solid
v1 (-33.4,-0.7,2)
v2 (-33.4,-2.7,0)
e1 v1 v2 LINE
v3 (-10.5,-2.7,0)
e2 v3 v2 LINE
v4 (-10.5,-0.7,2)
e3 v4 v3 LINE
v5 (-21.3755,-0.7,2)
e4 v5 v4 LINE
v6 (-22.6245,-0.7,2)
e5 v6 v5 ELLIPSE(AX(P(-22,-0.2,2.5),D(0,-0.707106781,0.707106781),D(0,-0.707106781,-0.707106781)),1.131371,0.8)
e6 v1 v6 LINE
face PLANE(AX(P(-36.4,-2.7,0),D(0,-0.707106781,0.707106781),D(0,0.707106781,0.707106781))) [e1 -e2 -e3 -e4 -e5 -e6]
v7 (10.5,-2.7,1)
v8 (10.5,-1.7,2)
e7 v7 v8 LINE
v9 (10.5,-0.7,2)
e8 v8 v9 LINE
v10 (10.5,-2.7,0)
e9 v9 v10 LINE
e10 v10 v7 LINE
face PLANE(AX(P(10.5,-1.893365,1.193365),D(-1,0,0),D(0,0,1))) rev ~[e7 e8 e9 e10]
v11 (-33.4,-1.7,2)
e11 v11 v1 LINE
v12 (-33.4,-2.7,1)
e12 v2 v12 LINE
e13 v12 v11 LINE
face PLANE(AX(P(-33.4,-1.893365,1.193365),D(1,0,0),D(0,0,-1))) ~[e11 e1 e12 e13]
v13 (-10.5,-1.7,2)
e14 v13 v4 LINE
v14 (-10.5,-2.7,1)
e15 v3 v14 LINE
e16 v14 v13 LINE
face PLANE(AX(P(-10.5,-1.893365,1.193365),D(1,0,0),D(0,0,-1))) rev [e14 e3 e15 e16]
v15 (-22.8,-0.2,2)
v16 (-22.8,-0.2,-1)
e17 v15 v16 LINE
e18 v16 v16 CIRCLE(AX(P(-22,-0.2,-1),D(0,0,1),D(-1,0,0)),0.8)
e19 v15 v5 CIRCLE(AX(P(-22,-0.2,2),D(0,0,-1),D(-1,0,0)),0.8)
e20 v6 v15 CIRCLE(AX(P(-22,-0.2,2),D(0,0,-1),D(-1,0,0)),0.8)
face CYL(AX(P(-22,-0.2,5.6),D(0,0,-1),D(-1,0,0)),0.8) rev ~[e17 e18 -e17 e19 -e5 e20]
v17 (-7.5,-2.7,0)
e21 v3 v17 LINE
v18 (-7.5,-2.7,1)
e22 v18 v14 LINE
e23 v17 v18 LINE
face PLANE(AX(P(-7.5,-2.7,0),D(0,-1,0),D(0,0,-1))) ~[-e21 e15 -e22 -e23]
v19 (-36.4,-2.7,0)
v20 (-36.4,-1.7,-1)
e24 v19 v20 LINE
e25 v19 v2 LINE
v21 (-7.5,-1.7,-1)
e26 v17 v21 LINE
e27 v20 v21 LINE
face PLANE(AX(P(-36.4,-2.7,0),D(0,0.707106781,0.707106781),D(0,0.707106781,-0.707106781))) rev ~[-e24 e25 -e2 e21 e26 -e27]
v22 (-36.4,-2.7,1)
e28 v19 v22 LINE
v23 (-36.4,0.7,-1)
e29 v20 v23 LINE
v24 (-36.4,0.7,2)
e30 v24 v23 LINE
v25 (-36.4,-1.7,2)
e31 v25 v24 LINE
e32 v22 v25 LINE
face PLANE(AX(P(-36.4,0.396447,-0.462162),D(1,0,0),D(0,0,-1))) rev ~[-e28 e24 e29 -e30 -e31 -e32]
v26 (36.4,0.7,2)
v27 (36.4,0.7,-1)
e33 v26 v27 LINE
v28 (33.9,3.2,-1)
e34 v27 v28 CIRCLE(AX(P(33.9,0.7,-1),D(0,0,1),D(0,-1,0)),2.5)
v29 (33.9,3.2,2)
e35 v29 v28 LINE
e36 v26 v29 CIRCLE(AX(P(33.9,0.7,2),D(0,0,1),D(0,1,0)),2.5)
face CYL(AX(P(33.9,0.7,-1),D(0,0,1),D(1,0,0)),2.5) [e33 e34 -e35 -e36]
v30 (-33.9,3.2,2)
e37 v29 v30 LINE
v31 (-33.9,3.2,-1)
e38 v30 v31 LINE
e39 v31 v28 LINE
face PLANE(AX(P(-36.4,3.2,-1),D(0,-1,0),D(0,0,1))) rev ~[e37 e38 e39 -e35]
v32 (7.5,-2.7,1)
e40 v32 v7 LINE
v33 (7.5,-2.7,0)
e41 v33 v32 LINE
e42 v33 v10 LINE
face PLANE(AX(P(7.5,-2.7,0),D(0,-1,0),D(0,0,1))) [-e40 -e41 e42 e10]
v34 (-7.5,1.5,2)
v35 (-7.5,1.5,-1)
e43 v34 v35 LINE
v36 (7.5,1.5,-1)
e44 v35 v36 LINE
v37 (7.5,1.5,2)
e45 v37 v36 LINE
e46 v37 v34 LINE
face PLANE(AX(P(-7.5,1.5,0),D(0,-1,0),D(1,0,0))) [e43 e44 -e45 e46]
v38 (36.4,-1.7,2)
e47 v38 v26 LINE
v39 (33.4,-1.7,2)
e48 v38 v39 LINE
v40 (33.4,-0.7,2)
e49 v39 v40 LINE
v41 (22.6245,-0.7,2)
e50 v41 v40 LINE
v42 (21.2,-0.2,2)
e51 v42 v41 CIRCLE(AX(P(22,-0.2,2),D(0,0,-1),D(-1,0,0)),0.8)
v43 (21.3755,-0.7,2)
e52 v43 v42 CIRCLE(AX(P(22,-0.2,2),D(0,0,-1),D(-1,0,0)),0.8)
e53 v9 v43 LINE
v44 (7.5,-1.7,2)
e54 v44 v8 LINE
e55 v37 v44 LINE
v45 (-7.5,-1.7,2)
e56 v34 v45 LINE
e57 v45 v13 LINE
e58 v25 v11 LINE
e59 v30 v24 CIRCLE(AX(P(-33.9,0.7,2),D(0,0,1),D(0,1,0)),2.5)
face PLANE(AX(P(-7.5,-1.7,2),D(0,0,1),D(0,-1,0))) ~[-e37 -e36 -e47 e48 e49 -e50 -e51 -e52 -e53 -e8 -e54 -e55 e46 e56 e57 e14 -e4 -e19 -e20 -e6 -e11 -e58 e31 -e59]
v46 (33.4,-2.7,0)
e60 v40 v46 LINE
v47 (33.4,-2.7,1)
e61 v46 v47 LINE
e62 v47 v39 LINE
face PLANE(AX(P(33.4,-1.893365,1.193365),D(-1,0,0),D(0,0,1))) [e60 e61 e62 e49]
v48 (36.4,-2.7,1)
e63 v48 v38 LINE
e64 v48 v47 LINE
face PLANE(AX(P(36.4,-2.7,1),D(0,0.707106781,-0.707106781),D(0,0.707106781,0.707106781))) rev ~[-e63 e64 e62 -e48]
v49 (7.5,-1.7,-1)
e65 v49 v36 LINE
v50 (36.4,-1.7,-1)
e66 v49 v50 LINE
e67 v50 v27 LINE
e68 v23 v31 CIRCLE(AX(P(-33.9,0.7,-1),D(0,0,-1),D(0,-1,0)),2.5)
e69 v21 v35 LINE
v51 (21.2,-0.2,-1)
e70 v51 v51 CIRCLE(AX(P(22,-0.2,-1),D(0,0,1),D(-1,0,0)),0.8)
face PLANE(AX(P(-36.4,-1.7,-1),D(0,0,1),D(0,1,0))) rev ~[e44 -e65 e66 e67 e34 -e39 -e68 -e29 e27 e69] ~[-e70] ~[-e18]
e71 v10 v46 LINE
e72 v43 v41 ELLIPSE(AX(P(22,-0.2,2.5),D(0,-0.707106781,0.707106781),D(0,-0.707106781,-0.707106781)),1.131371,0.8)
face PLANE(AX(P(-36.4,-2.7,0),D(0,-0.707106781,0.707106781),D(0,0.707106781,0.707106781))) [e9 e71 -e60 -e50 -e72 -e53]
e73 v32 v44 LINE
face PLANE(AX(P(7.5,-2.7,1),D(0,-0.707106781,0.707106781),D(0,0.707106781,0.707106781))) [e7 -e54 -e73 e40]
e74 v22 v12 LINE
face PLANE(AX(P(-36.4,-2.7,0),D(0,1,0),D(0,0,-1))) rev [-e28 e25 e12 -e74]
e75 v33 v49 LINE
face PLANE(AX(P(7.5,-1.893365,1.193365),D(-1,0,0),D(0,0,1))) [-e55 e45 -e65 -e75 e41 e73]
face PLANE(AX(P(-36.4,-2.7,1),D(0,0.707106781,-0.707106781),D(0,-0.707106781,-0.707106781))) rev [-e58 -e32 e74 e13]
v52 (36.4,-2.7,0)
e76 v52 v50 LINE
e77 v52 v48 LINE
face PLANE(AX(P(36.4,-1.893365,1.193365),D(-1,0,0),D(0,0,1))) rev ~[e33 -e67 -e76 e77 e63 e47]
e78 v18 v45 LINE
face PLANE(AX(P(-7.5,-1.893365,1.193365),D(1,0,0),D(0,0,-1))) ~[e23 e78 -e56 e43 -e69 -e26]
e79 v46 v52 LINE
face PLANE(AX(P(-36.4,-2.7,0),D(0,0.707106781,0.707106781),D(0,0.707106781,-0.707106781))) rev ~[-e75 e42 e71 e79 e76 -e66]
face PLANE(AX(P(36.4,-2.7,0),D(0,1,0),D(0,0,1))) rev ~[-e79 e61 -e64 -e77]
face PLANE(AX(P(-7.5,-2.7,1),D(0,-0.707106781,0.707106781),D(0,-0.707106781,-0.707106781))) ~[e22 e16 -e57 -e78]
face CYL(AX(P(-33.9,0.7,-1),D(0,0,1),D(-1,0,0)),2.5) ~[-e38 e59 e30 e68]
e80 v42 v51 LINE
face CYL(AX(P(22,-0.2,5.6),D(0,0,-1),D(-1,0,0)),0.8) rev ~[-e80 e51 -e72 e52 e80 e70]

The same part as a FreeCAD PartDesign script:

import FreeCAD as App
import Part
import Sketcher
from FreeCAD import Vector
Q = App.Units.Quantity


def edges_at(feature, points):
    """Names of the edges that pass closest to the given points."""
    edges = feature.Shape.Edges
    near = lambda p: min(range(len(edges)), key=lambda i: edges[i].distToShape(Part.Vertex(*p))[0])
    return sorted({f"Edge{near(p) + 1}" for p in points})


def add_polygon(sketch, points):
    """Adds a closed chain of lines whose ends are joined by coincident constraints."""
    first, n = sketch.GeometryCount, len(points)
    for a, b in zip(points, points[1:] + points[:1]):
        sketch.addGeometry(Part.LineSegment(App.Vector(*a, 0), App.Vector(*b, 0)), False)
    for i in range(n):
        sketch.addConstraint(Sketcher.Constraint("Coincident", first + i, 2, first + (i + 1) % n, 1))

doc = App.newDocument("Part")
body = doc.addObject("PartDesign::Body", "Body")

# Sketch on YZ plane
sketch1 = doc.addObject("Sketcher::SketchObject", "Sketch")
body.addObject(sketch1)
sketch1.AttachmentSupport = (doc.YZ_Plane, [""])
sketch1.MapMode = "FlatFace"
add_polygon(sketch1, [(-1.2, 2), (-3.2, 0), (3.2, 0), (3.2, 2)])  # lines 0-3
sketch1.addConstraint(Sketcher.Constraint("Horizontal", 1))
sketch1.addConstraint(Sketcher.Constraint("Vertical", 2))
sketch1.addConstraint(Sketcher.Constraint("Horizontal", 3))
sketch1.addConstraint(Sketcher.Constraint("Symmetric", 0, 2, 1, 2, -1, 1))
sketch1.addConstraint(Sketcher.Constraint("DistanceY", 2, 1, 2, 2, Q("2 mm")))
sketch1.addConstraint(Sketcher.Constraint("Angle", 0, Q("-135 deg")))
sketch1.addConstraint(Sketcher.Constraint("DistanceX", 1, 1, 1, 2, Q("6.4 mm")))
pad1 = doc.addObject("PartDesign::Pad", "Pad")
body.addObject(pad1)
pad1.Profile = sketch1
pad1.Length = 72.8
pad1.Midplane = True
doc.recompute()

fillet = doc.addObject("PartDesign::Fillet", "Fillet")
body.addObject(fillet)
fillet.Base = (pad1, edges_at(pad1, [(-36.4, 3.2, 1), (36.4, 3.2, 1)]))
fillet.Radius = 2.5

# Sketch on YZ plane
sketch2 = doc.addObject("Sketcher::SketchObject", "Sketch001")
body.addObject(sketch2)
sketch2.AttachmentSupport = (doc.YZ_Plane, [""])
sketch2.MapMode = "FlatFace"
sketch2.AttachmentOffset = App.Placement(Vector(0, 0, -36.4), App.Rotation())
add_polygon(sketch2, [(-0.7, 2), (-2.7, 0), (-3.2, 0), (-1.2, 2)])  # lines 0-3
sketch2.addConstraint(Sketcher.Constraint("Horizontal", 1))
sketch2.addConstraint(Sketcher.Constraint("Horizontal", 3))
sketch2.addConstraint(Sketcher.Constraint("PointOnObject", 0, 2, -1))
sketch2.addConstraint(Sketcher.Constraint("Parallel", 0, 2))
sketch2.addConstraint(Sketcher.Constraint("Angle", 0, Q("-135 deg")))
sketch2.addConstraint(Sketcher.Constraint("DistanceX", 1, 2, 1, 1, Q("0.5 mm")))
sketch2.addConstraint(Sketcher.Constraint("DistanceY", -1, 1, 2, 2, Q("2 mm")))
sketch2.addConstraint(Sketcher.Constraint("DistanceX", 0, 2, -1, 1, Q("2.7 mm")))
pocket1 = doc.addObject("PartDesign::Pocket", "Pocket")
body.addObject(pocket1)
pocket1.Profile = sketch2
pocket1.Length = 72.8
pocket1.Reversed = True

# Sketch on YZ plane
sketch3 = doc.addObject("Sketcher::SketchObject", "Sketch002")
body.addObject(sketch3)
sketch3.AttachmentSupport = (doc.YZ_Plane, [""])
sketch3.MapMode = "FlatFace"
sketch3.AttachmentOffset = App.Placement(Vector(0, 0, -36.4), App.Rotation())
add_polygon(sketch3, [(-1.7, -1), (-2.7, 0), (3.2, 0), (3.2, -1)])  # lines 0-3
sketch3.addConstraint(Sketcher.Constraint("Horizontal", 1))
sketch3.addConstraint(Sketcher.Constraint("Vertical", 2))
sketch3.addConstraint(Sketcher.Constraint("Horizontal", 3))
sketch3.addConstraint(Sketcher.Constraint("PointOnObject", 0, 2, -1))
sketch3.addConstraint(Sketcher.Constraint("DistanceY", 2, 2, 2, 1, Q("1 mm")))
sketch3.addConstraint(Sketcher.Constraint("Angle", 0, Q("135 deg")))
sketch3.addConstraint(Sketcher.Constraint("DistanceX", 1, 1, 1, 2, Q("5.9 mm")))
sketch3.addConstraint(Sketcher.Constraint("DistanceX", 0, 2, -1, 1, Q("2.7 mm")))
pad2 = doc.addObject("PartDesign::Pad", "Pad001")
body.addObject(pad2)
pad2.Profile = sketch3
pad2.Length = 72.8

# Sketch on XY plane
sketch4 = doc.addObject("Sketcher::SketchObject", "Sketch003")
body.addObject(sketch4)
sketch4.AttachmentSupport = (doc.XY_Plane, [""])
sketch4.MapMode = "FlatFace"
sketch4.AttachmentOffset = App.Placement(Vector(0, 0, 2), App.Rotation())
sketch4.addGeometry(Part.Circle(Vector(-22, -0.2, 0), Vector(0, 0, 1), 0.8), False)
sketch4.addGeometry(Part.Circle(Vector(22, -0.2, 0), Vector(0, 0, 1), 0.8), False)
sketch4.addGeometry(Part.Circle(Vector(0, -0.2, 0), Vector(0, 0, 1), 0.8), False)
sketch4.addConstraint(Sketcher.Constraint("Equal", 0, 1))
sketch4.addConstraint(Sketcher.Constraint("Equal", 1, 2))
sketch4.addConstraint(Sketcher.Constraint("Symmetric", 0, 3, 1, 3, -2))
sketch4.addConstraint(Sketcher.Constraint("PointOnObject", 2, 3, -2))
sketch4.addConstraint(Sketcher.Constraint("Horizontal", 1, 3, 2, 3))
sketch4.addConstraint(Sketcher.Constraint("Diameter", 0, Q("1.6 mm")))
sketch4.addConstraint(Sketcher.Constraint("DistanceX", 0, 3, -1, 1, Q("22 mm")))
sketch4.addConstraint(Sketcher.Constraint("DistanceY", 0, 3, -1, 1, Q("0.2 mm")))
doc.recompute()
hole = doc.addObject("PartDesign::Hole", "Hole")
body.addObject(hole)
hole.Profile = sketch4
hole.ThreadType = "None"
hole.Diameter = 1.6
hole.DepthType = "Dimension"
hole.Depth = 3.6
hole.DrillPoint = "Angled"
hole.DrillPointAngle = 118
doc.recompute()

fillet2 = doc.addObject("PartDesign::Fillet", "Fillet001")
body.addObject(fillet2)
fillet2.Base = (hole, edges_at(hole, [(36.4, 3.2, -0.5), (-36.4, 3.2, -0.5)]))
fillet2.Radius = 2.5

# Sketch on XY plane
sketch5 = doc.addObject("Sketcher::SketchObject", "Sketch004")
body.addObject(sketch5)
sketch5.AttachmentSupport = (doc.XY_Plane, [""])
sketch5.MapMode = "FlatFace"
add_polygon(sketch5, [(-7.5, 1.5), (-7.5, -3.2), (7.5, -3.2), (7.5, 1.5)])  # lines 0-3
sketch5.addConstraint(Sketcher.Constraint("Vertical", 0))
sketch5.addConstraint(Sketcher.Constraint("Horizontal", 1))
sketch5.addConstraint(Sketcher.Constraint("Vertical", 2))
sketch5.addConstraint(Sketcher.Constraint("Horizontal", 3))
sketch5.addConstraint(Sketcher.Constraint("DistanceX", 1, 1, 1, 2, Q("15 mm")))
sketch5.addConstraint(Sketcher.Constraint("DistanceY", 0, 2, 0, 1, Q("4.7 mm")))
sketch5.addConstraint(Sketcher.Constraint("DistanceX", 0, 2, -1, 1, Q("7.5 mm")))
sketch5.addConstraint(Sketcher.Constraint("DistanceY", 0, 2, -1, 1, Q("3.2 mm")))
pocket2 = doc.addObject("PartDesign::Pocket", "Pocket001")
body.addObject(pocket2)
pocket2.Profile = sketch5
pocket2.Length = 10
pocket2.Midplane = True

# Sketch on YZ plane
sketch6 = doc.addObject("Sketcher::SketchObject", "Sketch005")
body.addObject(sketch6)
sketch6.AttachmentSupport = (doc.YZ_Plane, [""])
sketch6.MapMode = "FlatFace"
sketch6.AttachmentOffset = App.Placement(Vector(0, 0, 36.4), App.Rotation())
add_polygon(sketch6, [(-2.7, 1), (-2.7, 0), (-0.7, 2), (-1.7, 2)])  # lines 0-3
sketch6.addConstraint(Sketcher.Constraint("Vertical", 0))
sketch6.addConstraint(Sketcher.Constraint("Horizontal", 2))
sketch6.addConstraint(Sketcher.Constraint("PointOnObject", 0, 2, -1))
sketch6.addConstraint(Sketcher.Constraint("Parallel", 1, 3))
sketch6.addConstraint(Sketcher.Constraint("Equal", 2, 0))
sketch6.addConstraint(Sketcher.Constraint("DistanceX", 2, 2, 2, 1, Q("1 mm")))
sketch6.addConstraint(Sketcher.Constraint("DistanceY", -1, 1, 1, 2, Q("2 mm")))
sketch6.addConstraint(Sketcher.Constraint("DistanceX", 0, 2, -1, 1, Q("2.7 mm")))
pad3 = doc.addObject("PartDesign::Pad", "Pad002")
body.addObject(pad3)
pad3.Profile = sketch6
pad3.Length = 3
pad3.Reversed = True

# Sketch on YZ plane
sketch7 = doc.addObject("Sketcher::SketchObject", "Sketch006")
body.addObject(sketch7)
sketch7.AttachmentSupport = (doc.YZ_Plane, [""])
sketch7.MapMode = "FlatFace"
sketch7.AttachmentOffset = App.Placement(Vector(0, 0, 7.5), App.Rotation())
add_polygon(sketch7, [(-2.7, 0), (-2.7, 1), (-1.7, 2), (-0.7, 2)])  # lines 0-3
sketch7.addConstraint(Sketcher.Constraint("Vertical", 0))
sketch7.addConstraint(Sketcher.Constraint("Horizontal", 2))
sketch7.addConstraint(Sketcher.Constraint("PointOnObject", 3, 2, -1))
sketch7.addConstraint(Sketcher.Constraint("Parallel", 1, 3))
sketch7.addConstraint(Sketcher.Constraint("Equal", 2, 0))
sketch7.addConstraint(Sketcher.Constraint("DistanceX", 2, 1, 2, 2, Q("1 mm")))
sketch7.addConstraint(Sketcher.Constraint("DistanceY", -1, 1, 1, 2, Q("2 mm")))
sketch7.addConstraint(Sketcher.Constraint("DistanceX", 0, 2, -1, 1, Q("2.7 mm")))
pad4 = doc.addObject("PartDesign::Pad", "Pad003")
body.addObject(pad4)
pad4.Profile = sketch7
pad4.Length = 3
body2 = doc.addObject("PartDesign::Body", "Body001")
doc.recompute()

body2.BaseFeature = body
doc.recompute()

mirroring = doc.addObject("Part::Mirroring", "Mirroring")
mirroring.Source = body
mirroring.Base = Vector(0, 0, 0)
mirroring.Normal = Vector(1, 0, 0)
body3 = doc.addObject("PartDesign::Body", "Body002")
body3.BaseFeature = mirroring
boolean = doc.addObject("PartDesign::Boolean", "Boolean")
body2.addObject(boolean)
boolean.Type = "Fuse"
boolean.addObjects([body3])
doc.recompute()
mirroring.Visibility = False

doc.recompute()
